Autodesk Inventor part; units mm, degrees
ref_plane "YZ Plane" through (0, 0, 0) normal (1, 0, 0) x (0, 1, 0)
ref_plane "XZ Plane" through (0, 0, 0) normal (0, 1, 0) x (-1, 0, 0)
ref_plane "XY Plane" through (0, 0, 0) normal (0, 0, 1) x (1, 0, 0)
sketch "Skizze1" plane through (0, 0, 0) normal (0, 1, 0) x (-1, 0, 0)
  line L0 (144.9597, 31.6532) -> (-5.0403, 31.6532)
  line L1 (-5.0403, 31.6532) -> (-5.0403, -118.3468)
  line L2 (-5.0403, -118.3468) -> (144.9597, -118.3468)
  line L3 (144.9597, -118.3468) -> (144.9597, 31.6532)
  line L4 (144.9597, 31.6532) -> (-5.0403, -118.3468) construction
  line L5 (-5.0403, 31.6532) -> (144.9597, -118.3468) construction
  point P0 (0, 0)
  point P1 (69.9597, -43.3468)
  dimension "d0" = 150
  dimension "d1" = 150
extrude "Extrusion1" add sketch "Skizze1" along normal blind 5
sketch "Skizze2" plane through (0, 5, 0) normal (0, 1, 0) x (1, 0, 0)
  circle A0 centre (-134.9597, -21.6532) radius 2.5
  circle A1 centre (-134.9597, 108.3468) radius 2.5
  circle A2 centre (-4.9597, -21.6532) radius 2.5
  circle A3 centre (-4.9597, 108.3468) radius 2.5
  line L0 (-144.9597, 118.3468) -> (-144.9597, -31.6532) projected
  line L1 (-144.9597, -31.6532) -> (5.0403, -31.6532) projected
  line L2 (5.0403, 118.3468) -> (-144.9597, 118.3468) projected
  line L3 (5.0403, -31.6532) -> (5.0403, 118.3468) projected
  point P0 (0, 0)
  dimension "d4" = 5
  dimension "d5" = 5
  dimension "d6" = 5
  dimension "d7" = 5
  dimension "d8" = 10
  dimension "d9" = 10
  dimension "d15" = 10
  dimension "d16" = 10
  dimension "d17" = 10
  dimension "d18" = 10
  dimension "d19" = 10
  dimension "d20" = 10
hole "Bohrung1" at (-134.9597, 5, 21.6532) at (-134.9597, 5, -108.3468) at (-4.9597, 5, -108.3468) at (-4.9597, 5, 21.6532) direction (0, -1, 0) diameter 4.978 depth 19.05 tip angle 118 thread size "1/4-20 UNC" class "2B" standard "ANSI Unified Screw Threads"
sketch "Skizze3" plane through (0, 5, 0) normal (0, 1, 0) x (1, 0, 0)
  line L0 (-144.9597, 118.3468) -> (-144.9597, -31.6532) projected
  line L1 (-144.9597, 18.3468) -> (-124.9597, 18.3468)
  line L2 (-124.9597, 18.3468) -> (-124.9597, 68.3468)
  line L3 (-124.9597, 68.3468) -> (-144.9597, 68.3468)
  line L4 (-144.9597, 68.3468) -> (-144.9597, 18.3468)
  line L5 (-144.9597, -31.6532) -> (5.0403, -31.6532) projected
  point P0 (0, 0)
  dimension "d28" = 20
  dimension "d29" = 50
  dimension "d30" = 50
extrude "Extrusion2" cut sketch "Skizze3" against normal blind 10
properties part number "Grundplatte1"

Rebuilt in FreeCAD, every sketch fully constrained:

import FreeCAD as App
import Part
import Sketcher

V = App.Vector
Q = App.Units.Quantity


def add_polygon(sketch, points):
    """Adds a closed chain of lines whose ends are joined by coincident constraints."""
    first, n = sketch.GeometryCount, len(points)
    for a, b in zip(points, points[1:] + points[:1]):
        sketch.addGeometry(Part.LineSegment(App.Vector(*a, 0), App.Vector(*b, 0)), False)
    for i in range(n):
        sketch.addConstraint(Sketcher.Constraint("Coincident", first + i, 2, first + (i + 1) % n, 1))

doc = App.newDocument("Part")
params = doc.addObject("Spreadsheet::Sheet", "Params")
for row, (alias, value) in enumerate([
    ("sketch1_width", "150 mm"),
    ("pad1_length", "5 mm"),
    ("hole_diameter", "4.978 mm"),
    ("hole_depth", "19.05 mm"),
    ("sketch3_width", "20 mm"),
    ("sketch3_height", "50 mm"),
    ("pocket1_length", "10 mm"),
], start=1):
    params.set(f"A{row}", alias)
    params.set(f"B{row}", "=" + value)
    params.setAlias(f"B{row}", alias)

body = doc.addObject("PartDesign::Body", "Body")

# Sketch on XZ plane
sketch1 = body.newObject("Sketcher::SketchObject", "Sketch")
sketch1.AttachmentSupport = (doc.getObject("XZ_Plane"), [""])
sketch1.MapMode = "FlatFace"
add_polygon(sketch1, [(-145, -118), (-145, 32), (5, 32), (5, -118)])  # lines 0-3
sketch1.addConstraint([
    Sketcher.Constraint("Vertical", 0),
    Sketcher.Constraint("Horizontal", 1),
    Sketcher.Constraint("Vertical", 2),
    Sketcher.Constraint("Horizontal", 3),
    Sketcher.Constraint("Equal", 3, 0),
    Sketcher.Constraint("DistanceX", 1, 1, 1, 2, Q("150 mm")),
    Sketcher.Constraint("DistanceX", 0, 2, -1, 1, Q("144.9597 mm")),
    Sketcher.Constraint("DistanceY", -1, 1, 0, 2, Q("31.6532 mm")),
])
sketch1.setExpression("Constraints[9]", "Params.sketch1_width")
pad1 = body.newObject("PartDesign::Pad", "Pad")
pad1.Profile = sketch1
pad1.setExpression("Length", "Params.pad1_length")
pad1.Reversed = True

# Sketch on XZ plane
sketch2 = body.newObject("Sketcher::SketchObject", "Sketch001")
sketch2.AttachmentSupport = (doc.getObject("XZ_Plane"), [""])
sketch2.MapMode = "FlatFace"
sketch2.AttachmentOffset = App.Placement(V(0, 0, -5), App.Rotation())
sketch2.addGeometry([
    Part.Circle(V(-135, 21.7, 0), V(0, 0, 1), 2.5),
    Part.Circle(V(-135, -108.3, 0), V(0, 0, 1), 2.5),
    Part.Circle(V(-5, -108.3, 0), V(0, 0, 1), 2.5),
    Part.Circle(V(-5, 21.7, 0), V(0, 0, 1), 2.5),
], False)
sketch2.addConstraint([
    Sketcher.Constraint("Equal", 0, 1),
    Sketcher.Constraint("Equal", 1, 2),
    Sketcher.Constraint("Equal", 2, 3),
    Sketcher.Constraint("Horizontal", 1, 3, 2, 3),
    Sketcher.Constraint("Horizontal", 0, 3, 3, 3),
    Sketcher.Constraint("Vertical", 0, 3, 1, 3),
    Sketcher.Constraint("Vertical", 2, 3, 3, 3),
    Sketcher.Constraint("Diameter", 0, Q("4.978 mm")),
    Sketcher.Constraint("DistanceY", 1, 3, 0, 3, Q("130 mm")),
    Sketcher.Constraint("DistanceX", 1, 3, 2, 3, Q("130 mm")),
    Sketcher.Constraint("DistanceX", 0, 3, -1, 1, Q("134.9597 mm")),
    Sketcher.Constraint("DistanceY", -1, 1, 0, 3, Q("21.6532 mm")),
])
doc.recompute()
hole = body.newObject("PartDesign::Hole", "Hole")
hole.Profile = sketch2
hole.ThreadType = "None"
hole.setExpression("Diameter", "Params.hole_diameter")
hole.DepthType = "Dimension"
hole.setExpression("Depth", "Params.hole_depth")
hole.DrillPoint = "Angled"
hole.DrillPointAngle = 118
hole.Reversed = True

# Sketch on XZ plane
sketch3 = body.newObject("Sketcher::SketchObject", "Sketch002")
sketch3.AttachmentSupport = (doc.getObject("XZ_Plane"), [""])
sketch3.MapMode = "FlatFace"
sketch3.AttachmentOffset = App.Placement(V(0, 0, -5), App.Rotation())
add_polygon(sketch3, [(-125, -68), (-145, -68), (-145, -18), (-125, -18)])  # lines 0-3
sketch3.addConstraint([
    Sketcher.Constraint("Horizontal", 0),
    Sketcher.Constraint("Vertical", 1),
    Sketcher.Constraint("Horizontal", 2),
    Sketcher.Constraint("Vertical", 3),
    Sketcher.Constraint("DistanceX", 0, 2, 0, 1, Q("20 mm")),
    Sketcher.Constraint("DistanceY", 1, 1, 1, 2, Q("50 mm")),
    Sketcher.Constraint("DistanceX", 0, 2, -1, 1, Q("144.9597 mm")),
    Sketcher.Constraint("DistanceY", 0, 2, -1, 1, Q("68.3468 mm")),
])
sketch3.setExpression("Constraints[8]", "Params.sketch3_width")
sketch3.setExpression("Constraints[9]", "Params.sketch3_height")
pocket1 = body.newObject("PartDesign::Pocket", "Pocket")
pocket1.Profile = sketch3
pocket1.setExpression("Length", "Params.pocket1_length")
pocket1.Reversed = True

doc.recompute()
